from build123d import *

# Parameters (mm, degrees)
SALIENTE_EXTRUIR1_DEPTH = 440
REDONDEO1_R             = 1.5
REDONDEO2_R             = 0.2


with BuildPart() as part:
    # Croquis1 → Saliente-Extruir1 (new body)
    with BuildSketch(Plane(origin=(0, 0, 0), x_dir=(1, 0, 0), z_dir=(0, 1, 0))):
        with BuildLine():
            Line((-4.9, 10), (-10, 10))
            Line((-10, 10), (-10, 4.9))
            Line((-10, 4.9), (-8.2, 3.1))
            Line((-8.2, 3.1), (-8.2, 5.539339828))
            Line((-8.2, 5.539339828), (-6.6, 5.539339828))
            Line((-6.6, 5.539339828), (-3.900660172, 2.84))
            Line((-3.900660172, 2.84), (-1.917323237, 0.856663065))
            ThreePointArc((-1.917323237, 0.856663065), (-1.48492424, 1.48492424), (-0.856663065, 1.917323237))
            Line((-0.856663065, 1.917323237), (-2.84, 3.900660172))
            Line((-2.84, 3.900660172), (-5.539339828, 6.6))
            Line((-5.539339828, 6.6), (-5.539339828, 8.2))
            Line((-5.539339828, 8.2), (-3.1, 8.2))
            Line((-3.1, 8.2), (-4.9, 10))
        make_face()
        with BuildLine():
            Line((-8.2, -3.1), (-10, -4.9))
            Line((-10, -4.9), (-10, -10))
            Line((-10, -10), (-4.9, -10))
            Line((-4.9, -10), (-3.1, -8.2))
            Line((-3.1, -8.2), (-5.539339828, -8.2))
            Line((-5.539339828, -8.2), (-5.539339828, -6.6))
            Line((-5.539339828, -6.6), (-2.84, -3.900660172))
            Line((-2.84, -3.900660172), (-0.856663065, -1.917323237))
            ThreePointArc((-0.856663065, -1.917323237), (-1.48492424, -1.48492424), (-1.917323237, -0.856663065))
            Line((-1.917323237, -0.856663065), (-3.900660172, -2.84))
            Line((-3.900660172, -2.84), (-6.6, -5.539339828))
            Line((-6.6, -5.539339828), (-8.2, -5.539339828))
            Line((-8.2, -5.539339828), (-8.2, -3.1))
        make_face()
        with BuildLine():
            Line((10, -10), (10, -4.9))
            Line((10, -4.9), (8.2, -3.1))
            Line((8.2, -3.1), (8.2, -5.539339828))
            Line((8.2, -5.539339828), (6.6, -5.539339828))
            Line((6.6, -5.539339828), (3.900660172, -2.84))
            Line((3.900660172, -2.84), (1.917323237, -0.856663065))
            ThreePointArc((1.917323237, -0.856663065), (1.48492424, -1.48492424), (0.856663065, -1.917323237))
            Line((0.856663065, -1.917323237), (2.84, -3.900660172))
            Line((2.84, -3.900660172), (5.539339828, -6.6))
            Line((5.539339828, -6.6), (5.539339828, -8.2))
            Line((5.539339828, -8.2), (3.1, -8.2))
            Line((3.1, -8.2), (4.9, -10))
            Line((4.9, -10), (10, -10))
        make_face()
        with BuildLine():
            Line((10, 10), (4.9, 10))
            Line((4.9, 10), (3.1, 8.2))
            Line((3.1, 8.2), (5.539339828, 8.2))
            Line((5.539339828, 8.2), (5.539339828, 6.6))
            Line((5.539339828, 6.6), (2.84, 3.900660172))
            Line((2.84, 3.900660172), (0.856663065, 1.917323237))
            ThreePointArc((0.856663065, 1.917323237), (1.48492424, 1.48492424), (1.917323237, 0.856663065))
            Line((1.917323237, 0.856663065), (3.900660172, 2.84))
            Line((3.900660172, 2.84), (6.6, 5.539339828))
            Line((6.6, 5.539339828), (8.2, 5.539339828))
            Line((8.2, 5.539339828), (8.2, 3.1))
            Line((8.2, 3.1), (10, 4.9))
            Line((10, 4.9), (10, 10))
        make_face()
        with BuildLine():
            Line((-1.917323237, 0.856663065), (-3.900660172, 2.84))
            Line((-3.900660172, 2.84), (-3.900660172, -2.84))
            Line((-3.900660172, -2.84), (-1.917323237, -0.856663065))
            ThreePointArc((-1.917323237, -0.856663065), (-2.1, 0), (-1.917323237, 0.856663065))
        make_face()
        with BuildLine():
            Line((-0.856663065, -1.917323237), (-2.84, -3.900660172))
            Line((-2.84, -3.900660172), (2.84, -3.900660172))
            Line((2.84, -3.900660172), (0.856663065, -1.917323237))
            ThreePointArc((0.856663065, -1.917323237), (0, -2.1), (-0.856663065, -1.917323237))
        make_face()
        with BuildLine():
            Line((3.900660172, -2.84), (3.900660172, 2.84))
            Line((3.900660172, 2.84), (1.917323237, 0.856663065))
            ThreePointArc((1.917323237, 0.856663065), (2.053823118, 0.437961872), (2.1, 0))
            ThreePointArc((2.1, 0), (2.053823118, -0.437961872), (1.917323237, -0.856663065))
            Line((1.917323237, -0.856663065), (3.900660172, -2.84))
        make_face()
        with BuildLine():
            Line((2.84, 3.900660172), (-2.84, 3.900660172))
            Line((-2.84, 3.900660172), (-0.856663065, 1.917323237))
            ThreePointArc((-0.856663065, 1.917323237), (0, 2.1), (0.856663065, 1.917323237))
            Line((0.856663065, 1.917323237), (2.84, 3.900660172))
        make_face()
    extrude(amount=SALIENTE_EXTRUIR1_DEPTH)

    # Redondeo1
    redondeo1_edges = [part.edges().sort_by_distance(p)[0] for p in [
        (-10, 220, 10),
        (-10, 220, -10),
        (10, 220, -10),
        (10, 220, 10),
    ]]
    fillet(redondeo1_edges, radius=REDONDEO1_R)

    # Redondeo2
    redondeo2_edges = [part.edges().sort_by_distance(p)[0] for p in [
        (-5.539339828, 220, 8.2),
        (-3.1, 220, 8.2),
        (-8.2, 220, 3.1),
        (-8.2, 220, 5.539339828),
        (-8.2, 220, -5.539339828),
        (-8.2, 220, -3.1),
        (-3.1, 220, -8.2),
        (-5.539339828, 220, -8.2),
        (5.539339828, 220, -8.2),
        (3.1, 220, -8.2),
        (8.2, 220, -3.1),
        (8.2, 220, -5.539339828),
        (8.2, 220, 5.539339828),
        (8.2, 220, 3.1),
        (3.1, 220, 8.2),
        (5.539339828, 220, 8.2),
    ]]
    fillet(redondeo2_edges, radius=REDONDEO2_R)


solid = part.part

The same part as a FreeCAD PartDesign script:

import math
import FreeCAD as App
import Part
import Sketcher


def edges_at(feature, points):
    """Names of the edges that pass closest to the given points."""
    edges = feature.Shape.Edges
    near = lambda p: min(range(len(edges)), key=lambda i: edges[i].distToShape(Part.Vertex(*p))[0])
    return sorted({f"Edge{near(p) + 1}" for p in points})

doc = App.newDocument("Part")
params = doc.addObject("Spreadsheet::Sheet", "Params")
for row, (alias, value) in enumerate([
    ("sketch1_radius", "2.1 mm"),
    ("sketch1_width", "5.1 mm"),
    ("sketch1_width2", "1.6 mm"),
    ("sketch1_width3", "5.68 mm"),
    ("pad1_length", "440 mm"),
    ("fillet_radius", "1.5 mm"),
    ("fillet2_radius", "0.2 mm"),
], start=1):
    params.set(f"A{row}", alias)
    params.set(f"B{row}", "=" + value)
    params.setAlias(f"B{row}", alias)

body = doc.addObject("PartDesign::Body", "Body")

# Sketch on XZ plane
sketch1 = doc.addObject("Sketcher::SketchObject", "Sketch")
body.addObject(sketch1)
sketch1.AttachmentSupport = (doc.XZ_Plane, [""])
sketch1.MapMode = "FlatFace"
sketch1.addGeometry([
    Part.LineSegment(App.Vector(-4.9, -10, 0), App.Vector(-10, -10, 0)),  # 0
    Part.LineSegment(App.Vector(-10, -10, 0), App.Vector(-10, -4.9, 0)),  # 1
    Part.LineSegment(App.Vector(-10, -4.9, 0), App.Vector(-8.2, -3.1, 0)),  # 2
    Part.LineSegment(App.Vector(-8.2, -3.1, 0), App.Vector(-8.2, -5.5, 0)),  # 3
    Part.LineSegment(App.Vector(-8.2, -5.5, 0), App.Vector(-6.6, -5.5, 0)),  # 4
    Part.LineSegment(App.Vector(-6.6, -5.5, 0), App.Vector(-3.9, -2.8, 0)),  # 5
    Part.LineSegment(App.Vector(-3.9, -2.8, 0), App.Vector(-3.9, 2.8, 0)),  # 6
    Part.LineSegment(App.Vector(-3.9, 2.8, 0), App.Vector(-6.6, 5.5, 0)),  # 7
    Part.LineSegment(App.Vector(-6.6, 5.5, 0), App.Vector(-8.2, 5.5, 0)),  # 8
    Part.LineSegment(App.Vector(-8.2, 5.5, 0), App.Vector(-8.2, 3.1, 0)),  # 9
    Part.LineSegment(App.Vector(-8.2, 3.1, 0), App.Vector(-10, 4.9, 0)),  # 10
    Part.LineSegment(App.Vector(-10, 4.9, 0), App.Vector(-10, 10, 0)),  # 11
    Part.LineSegment(App.Vector(-10, 10, 0), App.Vector(-4.9, 10, 0)),  # 12
    Part.LineSegment(App.Vector(-4.9, 10, 0), App.Vector(-3.1, 8.2, 0)),  # 13
    Part.LineSegment(App.Vector(-3.1, 8.2, 0), App.Vector(-5.5, 8.2, 0)),  # 14
    Part.LineSegment(App.Vector(-5.5, 8.2, 0), App.Vector(-5.5, 6.6, 0)),  # 15
    Part.LineSegment(App.Vector(-5.5, 6.6, 0), App.Vector(-2.8, 3.9, 0)),  # 16
    Part.LineSegment(App.Vector(-2.8, 3.9, 0), App.Vector(2.8, 3.9, 0)),  # 17
    Part.LineSegment(App.Vector(2.8, 3.9, 0), App.Vector(5.5, 6.6, 0)),  # 18
    Part.LineSegment(App.Vector(5.5, 6.6, 0), App.Vector(5.5, 8.2, 0)),  # 19
    Part.LineSegment(App.Vector(5.5, 8.2, 0), App.Vector(3.1, 8.2, 0)),  # 20
    Part.LineSegment(App.Vector(3.1, 8.2, 0), App.Vector(4.9, 10, 0)),  # 21
    Part.LineSegment(App.Vector(4.9, 10, 0), App.Vector(10, 10, 0)),  # 22
    Part.LineSegment(App.Vector(10, 10, 0), App.Vector(10, 4.9, 0)),  # 23
    Part.LineSegment(App.Vector(10, 4.9, 0), App.Vector(8.2, 3.1, 0)),  # 24
    Part.LineSegment(App.Vector(8.2, 3.1, 0), App.Vector(8.2, 5.5, 0)),  # 25
    Part.LineSegment(App.Vector(8.2, 5.5, 0), App.Vector(6.6, 5.5, 0)),  # 26
    Part.LineSegment(App.Vector(6.6, 5.5, 0), App.Vector(3.9, 2.8, 0)),  # 27
    Part.LineSegment(App.Vector(3.9, 2.8, 0), App.Vector(3.9, -2.8, 0)),  # 28
    Part.LineSegment(App.Vector(3.9, -2.8, 0), App.Vector(6.6, -5.5, 0)),  # 29
    Part.LineSegment(App.Vector(6.6, -5.5, 0), App.Vector(8.2, -5.5, 0)),  # 30
    Part.LineSegment(App.Vector(8.2, -5.5, 0), App.Vector(8.2, -3.1, 0)),  # 31
    Part.LineSegment(App.Vector(8.2, -3.1, 0), App.Vector(10, -4.9, 0)),  # 32
    Part.LineSegment(App.Vector(10, -4.9, 0), App.Vector(10, -10, 0)),  # 33
    Part.LineSegment(App.Vector(10, -10, 0), App.Vector(4.9, -10, 0)),  # 34
    Part.LineSegment(App.Vector(4.9, -10, 0), App.Vector(3.1, -8.2, 0)),  # 35
    Part.LineSegment(App.Vector(3.1, -8.2, 0), App.Vector(5.5, -8.2, 0)),  # 36
    Part.LineSegment(App.Vector(5.5, -8.2, 0), App.Vector(5.5, -6.6, 0)),  # 37
    Part.LineSegment(App.Vector(5.5, -6.6, 0), App.Vector(2.8, -3.9, 0)),  # 38
    Part.LineSegment(App.Vector(2.8, -3.9, 0), App.Vector(-2.8, -3.9, 0)),  # 39
    Part.LineSegment(App.Vector(-2.8, -3.9, 0), App.Vector(-5.5, -6.6, 0)),  # 40
    Part.LineSegment(App.Vector(-5.5, -6.6, 0), App.Vector(-5.5, -8.2, 0)),  # 41
    Part.LineSegment(App.Vector(-5.5, -8.2, 0), App.Vector(-3.1, -8.2, 0)),  # 42
    Part.LineSegment(App.Vector(-3.1, -8.2, 0), App.Vector(-4.9, -10, 0)),  # 43
    Part.ArcOfCircle(Part.Circle(App.Vector(0, 0, 0), App.Vector(0, 0, 1), 2.1), math.radians(-66), math.radians(-24)),  # 44
    Part.ArcOfCircle(Part.Circle(App.Vector(0, 0, 0), App.Vector(0, 0, 1), 2.1), math.radians(-24), math.radians(0)),  # 45
    Part.ArcOfCircle(Part.Circle(App.Vector(0, 0, 0), App.Vector(0, 0, 1), 2.1), math.radians(0), math.radians(24)),  # 46
    Part.ArcOfCircle(Part.Circle(App.Vector(0, 0, 0), App.Vector(0, 0, 1), 2.1), math.radians(24), math.radians(66)),  # 47
    Part.ArcOfCircle(Part.Circle(App.Vector(0, 0, 0), App.Vector(0, 0, 1), 2.1), math.radians(66), math.radians(114)),  # 48
    Part.ArcOfCircle(Part.Circle(App.Vector(0, 0, 0), App.Vector(0, 0, 1), 2.1), math.radians(114), math.radians(156)),  # 49
    Part.ArcOfCircle(Part.Circle(App.Vector(0, 0, 0), App.Vector(0, 0, 1), 2.1), math.radians(156), math.radians(204)),  # 50
    Part.ArcOfCircle(Part.Circle(App.Vector(0, 0, 0), App.Vector(0, 0, 1), 2.1), math.radians(-156), math.radians(-114)),  # 51
    Part.ArcOfCircle(Part.Circle(App.Vector(0, 0, 0), App.Vector(0, 0, 1), 2.1), math.radians(-114), math.radians(-66)),  # 52
], False)
sketch1.addConstraint([
    Sketcher.Constraint("Coincident", 0, 2, 1, 1),
    Sketcher.Constraint("Coincident", 1, 2, 2, 1),
    Sketcher.Constraint("Coincident", 2, 2, 3, 1),
    Sketcher.Constraint("Coincident", 3, 2, 4, 1),
    Sketcher.Constraint("Coincident", 4, 2, 5, 1),
    Sketcher.Constraint("Coincident", 5, 2, 6, 1),
    Sketcher.Constraint("Coincident", 6, 2, 7, 1),
    Sketcher.Constraint("Coincident", 7, 2, 8, 1),
    Sketcher.Constraint("Coincident", 8, 2, 9, 1),
    Sketcher.Constraint("Coincident", 9, 2, 10, 1),
    Sketcher.Constraint("Coincident", 10, 2, 11, 1),
    Sketcher.Constraint("Coincident", 11, 2, 12, 1),
    Sketcher.Constraint("Coincident", 12, 2, 13, 1),
    Sketcher.Constraint("Coincident", 13, 2, 14, 1),
    Sketcher.Constraint("Coincident", 14, 2, 15, 1),
    Sketcher.Constraint("Coincident", 15, 2, 16, 1),
    Sketcher.Constraint("Coincident", 16, 2, 17, 1),
    Sketcher.Constraint("Coincident", 17, 2, 18, 1),
    Sketcher.Constraint("Coincident", 18, 2, 19, 1),
    Sketcher.Constraint("Coincident", 19, 2, 20, 1),
    Sketcher.Constraint("Coincident", 20, 2, 21, 1),
    Sketcher.Constraint("Coincident", 21, 2, 22, 1),
    Sketcher.Constraint("Coincident", 22, 2, 23, 1),
    Sketcher.Constraint("Coincident", 23, 2, 24, 1),
    Sketcher.Constraint("Coincident", 24, 2, 25, 1),
    Sketcher.Constraint("Coincident", 25, 2, 26, 1),
    Sketcher.Constraint("Coincident", 26, 2, 27, 1),
    Sketcher.Constraint("Coincident", 27, 2, 28, 1),
    Sketcher.Constraint("Coincident", 28, 2, 29, 1),
    Sketcher.Constraint("Coincident", 29, 2, 30, 1),
    Sketcher.Constraint("Coincident", 30, 2, 31, 1),
    Sketcher.Constraint("Coincident", 31, 2, 32, 1),
    Sketcher.Constraint("Coincident", 32, 2, 33, 1),
    Sketcher.Constraint("Coincident", 33, 2, 34, 1),
    Sketcher.Constraint("Coincident", 34, 2, 35, 1),
    Sketcher.Constraint("Coincident", 35, 2, 36, 1),
    Sketcher.Constraint("Coincident", 36, 2, 37, 1),
    Sketcher.Constraint("Coincident", 37, 2, 38, 1),
    Sketcher.Constraint("Coincident", 38, 2, 39, 1),
    Sketcher.Constraint("Coincident", 39, 2, 40, 1),
    Sketcher.Constraint("Coincident", 40, 2, 41, 1),
    Sketcher.Constraint("Coincident", 41, 2, 42, 1),
    Sketcher.Constraint("Coincident", 42, 2, 43, 1),
    Sketcher.Constraint("Coincident", 43, 2, 0, 1),
    Sketcher.Constraint("Tangent", 44, 2, 45, 1),
    Sketcher.Constraint("Tangent", 45, 2, 46, 1),
    Sketcher.Constraint("Tangent", 46, 2, 47, 1),
    Sketcher.Constraint("Tangent", 47, 2, 48, 1),
    Sketcher.Constraint("Tangent", 48, 2, 49, 1),
    Sketcher.Constraint("Tangent", 49, 2, 50, 1),
    Sketcher.Constraint("Tangent", 50, 2, 51, 1),
    Sketcher.Constraint("Tangent", 51, 2, 52, 1),
    Sketcher.Constraint("Tangent", 52, 2, 44, 1),
    Sketcher.Constraint("Horizontal", 0),
    Sketcher.Constraint("Vertical", 1),
    Sketcher.Constraint("Vertical", 3),
    Sketcher.Constraint("Horizontal", 4),
    Sketcher.Constraint("Vertical", 6),
    Sketcher.Constraint("Horizontal", 8),
    Sketcher.Constraint("Vertical", 9),
    Sketcher.Constraint("Vertical", 11),
    Sketcher.Constraint("Horizontal", 12),
    Sketcher.Constraint("Horizontal", 14),
    Sketcher.Constraint("Vertical", 15),
    Sketcher.Constraint("Horizontal", 17),
    Sketcher.Constraint("Vertical", 19),
    Sketcher.Constraint("Horizontal", 20),
    Sketcher.Constraint("Horizontal", 22),
    Sketcher.Constraint("Vertical", 23),
    Sketcher.Constraint("Vertical", 25),
    Sketcher.Constraint("Horizontal", 26),
    Sketcher.Constraint("Vertical", 28),
    Sketcher.Constraint("Horizontal", 30),
    Sketcher.Constraint("Vertical", 31),
    Sketcher.Constraint("Vertical", 33),
    Sketcher.Constraint("Horizontal", 34),
    Sketcher.Constraint("Horizontal", 36),
    Sketcher.Constraint("Vertical", 37),
    Sketcher.Constraint("Horizontal", 39),
    Sketcher.Constraint("Vertical", 41),
    Sketcher.Constraint("Horizontal", 42),
    Sketcher.Constraint("Coincident", 44, 3, -1, 1),
    Sketcher.Constraint("Coincident", 46, 3, -1, 1),
    Sketcher.Constraint("Coincident", 48, 3, -1, 1),
    Sketcher.Constraint("Coincident", 50, 3, -1, 1),
    Sketcher.Constraint("Symmetric", 0, 2, 22, 2, -1, 1),
    Sketcher.Constraint("Symmetric", 2, 2, 24, 2, -1, 1),
    Sketcher.Constraint("Symmetric", 4, 2, 26, 2, -1, 1),
    Sketcher.Constraint("Symmetric", 5, 2, 27, 2, -1, 1),
    Sketcher.Constraint("Symmetric", 7, 2, 29, 2, -1, 1),
    Sketcher.Constraint("Symmetric", 9, 2, 31, 2, -1, 1),
    Sketcher.Constraint("Symmetric", 10, 2, 32, 2, -1, 1),
    Sketcher.Constraint("Symmetric", 12, 2, 34, 2, -1, 1),
    Sketcher.Constraint("Symmetric", 13, 2, 35, 2, -1, 1),
    Sketcher.Constraint("Symmetric", 15, 2, 37, 2, -1, 1),
    Sketcher.Constraint("Symmetric", 16, 2, 38, 2, -1, 1),
    Sketcher.Constraint("Symmetric", 18, 2, 40, 2, -1, 1),
    Sketcher.Constraint("Symmetric", 20, 2, 42, 2, -1, 1),
    Sketcher.Constraint("Symmetric", 15, 2, 18, 2, -2),
    Sketcher.Constraint("Symmetric", 13, 2, 20, 2, -2),
    Sketcher.Constraint("Symmetric", 12, 2, 21, 2, -2),
    Sketcher.Constraint("Symmetric", 10, 2, 23, 2, -2),
    Sketcher.Constraint("Symmetric", 9, 2, 24, 2, -2),
    Sketcher.Constraint("Symmetric", 7, 2, 26, 2, -2),
    Sketcher.Constraint("PointOnObject", 45, 2, -1),
    Sketcher.Constraint("Parallel", 2, 5),
    Sketcher.Constraint("Perpendicular", 5, 7),
    Sketcher.Constraint("Parallel", 7, 10),
    Sketcher.Constraint("Parallel", 10, 13),
    Sketcher.Constraint("Parallel", 13, 16),
    Sketcher.Constraint("Perpendicular", 16, 18),
    Sketcher.Constraint("Parallel", 18, 21),
    Sketcher.Constraint("Perpendicular", 27, 29),
    Sketcher.Constraint("Perpendicular", 38, 40),
    Sketcher.Constraint("Parallel", 40, 43),
    Sketcher.Constraint("Horizontal", 47, 2, 48, 2),
    Sketcher.Constraint("Horizontal", 46, 2, 49, 2),
    Sketcher.Constraint("Horizontal", 44, 2, 50, 2),
    Sketcher.Constraint("Horizontal", 51, 2, 52, 2),
    Sketcher.Constraint("Vertical", 44, 2, 46, 2),
    Sketcher.Constraint("Vertical", 48, 2, 51, 2),
    Sketcher.Constraint("Equal", 34, 1),
    Sketcher.Constraint("Equal", 42, 3),
    Sketcher.Constraint("Equal", 39, 6),
    Sketcher.Constraint("Equal", 30, 15),
    Sketcher.Constraint("Equal", 10, 13),
    Sketcher.Constraint("Equal", 7, 16),
    Sketcher.Constraint("Radius", 44, 2.1),
    Sketcher.Constraint("DistanceX", 0, 2, 0, 1, 5.1),
    Sketcher.Constraint("DistanceX", 4, 1, 4, 2, 1.6),
    Sketcher.Constraint("DistanceX", 0, 2, -1, 1, 10.0),
    Sketcher.Constraint("DistanceX", 17, 1, 17, 2, 5.68),
    Sketcher.Constraint("DistanceX", 2, 2, -1, 1, 8.2),
    Sketcher.Constraint("DistanceX", 14, 2, 14, 1, 2.43934),
    Sketcher.Constraint("DistanceX", -1, 1, 44, 2, 1.917323),
    Sketcher.Constraint("DistanceX", -1, 1, 47, 2, 0.856663),
])
sketch1.setExpression("Constraints[127]", "Params.sketch1_radius")
sketch1.setExpression("Constraints[128]", "Params.sketch1_width")
sketch1.setExpression("Constraints[129]", "Params.sketch1_width2")
sketch1.setExpression("Constraints[131]", "Params.sketch1_width3")
pad1 = doc.addObject("PartDesign::Pad", "Pad")
body.addObject(pad1)
pad1.Profile = sketch1
pad1.setExpression("Length", "Params.pad1_length")
pad1.Reversed = True
doc.recompute()

fillet = doc.addObject("PartDesign::Fillet", "Fillet")
body.addObject(fillet)
fillet.Base = (pad1, edges_at(pad1, [
    (-10, 220, 10),
    (-10, 220, -10),
    (10, 220, -10),
    (10, 220, 10),
]))
fillet.setExpression("Radius", "Params.fillet_radius")
doc.recompute()

fillet2 = doc.addObject("PartDesign::Fillet", "Fillet001")
body.addObject(fillet2)
fillet2.Base = (fillet, edges_at(fillet, [
    (-5.539, 220, 8.2),
    (-3.1, 220, 8.2),
    (-8.2, 220, 3.1),
    (-8.2, 220, 5.539),
    (-8.2, 220, -5.539),
    (-8.2, 220, -3.1),
    (-3.1, 220, -8.2),
    (-5.539, 220, -8.2),
    (5.539, 220, -8.2),
    (3.1, 220, -8.2),
    (8.2, 220, -3.1),
    (8.2, 220, -5.539),
    (8.2, 220, 5.539),
    (8.2, 220, 3.1),
    (3.1, 220, 8.2),
    (5.539, 220, 8.2),
]))
fillet2.setExpression("Radius", "Params.fillet2_radius")

doc.recompute()
